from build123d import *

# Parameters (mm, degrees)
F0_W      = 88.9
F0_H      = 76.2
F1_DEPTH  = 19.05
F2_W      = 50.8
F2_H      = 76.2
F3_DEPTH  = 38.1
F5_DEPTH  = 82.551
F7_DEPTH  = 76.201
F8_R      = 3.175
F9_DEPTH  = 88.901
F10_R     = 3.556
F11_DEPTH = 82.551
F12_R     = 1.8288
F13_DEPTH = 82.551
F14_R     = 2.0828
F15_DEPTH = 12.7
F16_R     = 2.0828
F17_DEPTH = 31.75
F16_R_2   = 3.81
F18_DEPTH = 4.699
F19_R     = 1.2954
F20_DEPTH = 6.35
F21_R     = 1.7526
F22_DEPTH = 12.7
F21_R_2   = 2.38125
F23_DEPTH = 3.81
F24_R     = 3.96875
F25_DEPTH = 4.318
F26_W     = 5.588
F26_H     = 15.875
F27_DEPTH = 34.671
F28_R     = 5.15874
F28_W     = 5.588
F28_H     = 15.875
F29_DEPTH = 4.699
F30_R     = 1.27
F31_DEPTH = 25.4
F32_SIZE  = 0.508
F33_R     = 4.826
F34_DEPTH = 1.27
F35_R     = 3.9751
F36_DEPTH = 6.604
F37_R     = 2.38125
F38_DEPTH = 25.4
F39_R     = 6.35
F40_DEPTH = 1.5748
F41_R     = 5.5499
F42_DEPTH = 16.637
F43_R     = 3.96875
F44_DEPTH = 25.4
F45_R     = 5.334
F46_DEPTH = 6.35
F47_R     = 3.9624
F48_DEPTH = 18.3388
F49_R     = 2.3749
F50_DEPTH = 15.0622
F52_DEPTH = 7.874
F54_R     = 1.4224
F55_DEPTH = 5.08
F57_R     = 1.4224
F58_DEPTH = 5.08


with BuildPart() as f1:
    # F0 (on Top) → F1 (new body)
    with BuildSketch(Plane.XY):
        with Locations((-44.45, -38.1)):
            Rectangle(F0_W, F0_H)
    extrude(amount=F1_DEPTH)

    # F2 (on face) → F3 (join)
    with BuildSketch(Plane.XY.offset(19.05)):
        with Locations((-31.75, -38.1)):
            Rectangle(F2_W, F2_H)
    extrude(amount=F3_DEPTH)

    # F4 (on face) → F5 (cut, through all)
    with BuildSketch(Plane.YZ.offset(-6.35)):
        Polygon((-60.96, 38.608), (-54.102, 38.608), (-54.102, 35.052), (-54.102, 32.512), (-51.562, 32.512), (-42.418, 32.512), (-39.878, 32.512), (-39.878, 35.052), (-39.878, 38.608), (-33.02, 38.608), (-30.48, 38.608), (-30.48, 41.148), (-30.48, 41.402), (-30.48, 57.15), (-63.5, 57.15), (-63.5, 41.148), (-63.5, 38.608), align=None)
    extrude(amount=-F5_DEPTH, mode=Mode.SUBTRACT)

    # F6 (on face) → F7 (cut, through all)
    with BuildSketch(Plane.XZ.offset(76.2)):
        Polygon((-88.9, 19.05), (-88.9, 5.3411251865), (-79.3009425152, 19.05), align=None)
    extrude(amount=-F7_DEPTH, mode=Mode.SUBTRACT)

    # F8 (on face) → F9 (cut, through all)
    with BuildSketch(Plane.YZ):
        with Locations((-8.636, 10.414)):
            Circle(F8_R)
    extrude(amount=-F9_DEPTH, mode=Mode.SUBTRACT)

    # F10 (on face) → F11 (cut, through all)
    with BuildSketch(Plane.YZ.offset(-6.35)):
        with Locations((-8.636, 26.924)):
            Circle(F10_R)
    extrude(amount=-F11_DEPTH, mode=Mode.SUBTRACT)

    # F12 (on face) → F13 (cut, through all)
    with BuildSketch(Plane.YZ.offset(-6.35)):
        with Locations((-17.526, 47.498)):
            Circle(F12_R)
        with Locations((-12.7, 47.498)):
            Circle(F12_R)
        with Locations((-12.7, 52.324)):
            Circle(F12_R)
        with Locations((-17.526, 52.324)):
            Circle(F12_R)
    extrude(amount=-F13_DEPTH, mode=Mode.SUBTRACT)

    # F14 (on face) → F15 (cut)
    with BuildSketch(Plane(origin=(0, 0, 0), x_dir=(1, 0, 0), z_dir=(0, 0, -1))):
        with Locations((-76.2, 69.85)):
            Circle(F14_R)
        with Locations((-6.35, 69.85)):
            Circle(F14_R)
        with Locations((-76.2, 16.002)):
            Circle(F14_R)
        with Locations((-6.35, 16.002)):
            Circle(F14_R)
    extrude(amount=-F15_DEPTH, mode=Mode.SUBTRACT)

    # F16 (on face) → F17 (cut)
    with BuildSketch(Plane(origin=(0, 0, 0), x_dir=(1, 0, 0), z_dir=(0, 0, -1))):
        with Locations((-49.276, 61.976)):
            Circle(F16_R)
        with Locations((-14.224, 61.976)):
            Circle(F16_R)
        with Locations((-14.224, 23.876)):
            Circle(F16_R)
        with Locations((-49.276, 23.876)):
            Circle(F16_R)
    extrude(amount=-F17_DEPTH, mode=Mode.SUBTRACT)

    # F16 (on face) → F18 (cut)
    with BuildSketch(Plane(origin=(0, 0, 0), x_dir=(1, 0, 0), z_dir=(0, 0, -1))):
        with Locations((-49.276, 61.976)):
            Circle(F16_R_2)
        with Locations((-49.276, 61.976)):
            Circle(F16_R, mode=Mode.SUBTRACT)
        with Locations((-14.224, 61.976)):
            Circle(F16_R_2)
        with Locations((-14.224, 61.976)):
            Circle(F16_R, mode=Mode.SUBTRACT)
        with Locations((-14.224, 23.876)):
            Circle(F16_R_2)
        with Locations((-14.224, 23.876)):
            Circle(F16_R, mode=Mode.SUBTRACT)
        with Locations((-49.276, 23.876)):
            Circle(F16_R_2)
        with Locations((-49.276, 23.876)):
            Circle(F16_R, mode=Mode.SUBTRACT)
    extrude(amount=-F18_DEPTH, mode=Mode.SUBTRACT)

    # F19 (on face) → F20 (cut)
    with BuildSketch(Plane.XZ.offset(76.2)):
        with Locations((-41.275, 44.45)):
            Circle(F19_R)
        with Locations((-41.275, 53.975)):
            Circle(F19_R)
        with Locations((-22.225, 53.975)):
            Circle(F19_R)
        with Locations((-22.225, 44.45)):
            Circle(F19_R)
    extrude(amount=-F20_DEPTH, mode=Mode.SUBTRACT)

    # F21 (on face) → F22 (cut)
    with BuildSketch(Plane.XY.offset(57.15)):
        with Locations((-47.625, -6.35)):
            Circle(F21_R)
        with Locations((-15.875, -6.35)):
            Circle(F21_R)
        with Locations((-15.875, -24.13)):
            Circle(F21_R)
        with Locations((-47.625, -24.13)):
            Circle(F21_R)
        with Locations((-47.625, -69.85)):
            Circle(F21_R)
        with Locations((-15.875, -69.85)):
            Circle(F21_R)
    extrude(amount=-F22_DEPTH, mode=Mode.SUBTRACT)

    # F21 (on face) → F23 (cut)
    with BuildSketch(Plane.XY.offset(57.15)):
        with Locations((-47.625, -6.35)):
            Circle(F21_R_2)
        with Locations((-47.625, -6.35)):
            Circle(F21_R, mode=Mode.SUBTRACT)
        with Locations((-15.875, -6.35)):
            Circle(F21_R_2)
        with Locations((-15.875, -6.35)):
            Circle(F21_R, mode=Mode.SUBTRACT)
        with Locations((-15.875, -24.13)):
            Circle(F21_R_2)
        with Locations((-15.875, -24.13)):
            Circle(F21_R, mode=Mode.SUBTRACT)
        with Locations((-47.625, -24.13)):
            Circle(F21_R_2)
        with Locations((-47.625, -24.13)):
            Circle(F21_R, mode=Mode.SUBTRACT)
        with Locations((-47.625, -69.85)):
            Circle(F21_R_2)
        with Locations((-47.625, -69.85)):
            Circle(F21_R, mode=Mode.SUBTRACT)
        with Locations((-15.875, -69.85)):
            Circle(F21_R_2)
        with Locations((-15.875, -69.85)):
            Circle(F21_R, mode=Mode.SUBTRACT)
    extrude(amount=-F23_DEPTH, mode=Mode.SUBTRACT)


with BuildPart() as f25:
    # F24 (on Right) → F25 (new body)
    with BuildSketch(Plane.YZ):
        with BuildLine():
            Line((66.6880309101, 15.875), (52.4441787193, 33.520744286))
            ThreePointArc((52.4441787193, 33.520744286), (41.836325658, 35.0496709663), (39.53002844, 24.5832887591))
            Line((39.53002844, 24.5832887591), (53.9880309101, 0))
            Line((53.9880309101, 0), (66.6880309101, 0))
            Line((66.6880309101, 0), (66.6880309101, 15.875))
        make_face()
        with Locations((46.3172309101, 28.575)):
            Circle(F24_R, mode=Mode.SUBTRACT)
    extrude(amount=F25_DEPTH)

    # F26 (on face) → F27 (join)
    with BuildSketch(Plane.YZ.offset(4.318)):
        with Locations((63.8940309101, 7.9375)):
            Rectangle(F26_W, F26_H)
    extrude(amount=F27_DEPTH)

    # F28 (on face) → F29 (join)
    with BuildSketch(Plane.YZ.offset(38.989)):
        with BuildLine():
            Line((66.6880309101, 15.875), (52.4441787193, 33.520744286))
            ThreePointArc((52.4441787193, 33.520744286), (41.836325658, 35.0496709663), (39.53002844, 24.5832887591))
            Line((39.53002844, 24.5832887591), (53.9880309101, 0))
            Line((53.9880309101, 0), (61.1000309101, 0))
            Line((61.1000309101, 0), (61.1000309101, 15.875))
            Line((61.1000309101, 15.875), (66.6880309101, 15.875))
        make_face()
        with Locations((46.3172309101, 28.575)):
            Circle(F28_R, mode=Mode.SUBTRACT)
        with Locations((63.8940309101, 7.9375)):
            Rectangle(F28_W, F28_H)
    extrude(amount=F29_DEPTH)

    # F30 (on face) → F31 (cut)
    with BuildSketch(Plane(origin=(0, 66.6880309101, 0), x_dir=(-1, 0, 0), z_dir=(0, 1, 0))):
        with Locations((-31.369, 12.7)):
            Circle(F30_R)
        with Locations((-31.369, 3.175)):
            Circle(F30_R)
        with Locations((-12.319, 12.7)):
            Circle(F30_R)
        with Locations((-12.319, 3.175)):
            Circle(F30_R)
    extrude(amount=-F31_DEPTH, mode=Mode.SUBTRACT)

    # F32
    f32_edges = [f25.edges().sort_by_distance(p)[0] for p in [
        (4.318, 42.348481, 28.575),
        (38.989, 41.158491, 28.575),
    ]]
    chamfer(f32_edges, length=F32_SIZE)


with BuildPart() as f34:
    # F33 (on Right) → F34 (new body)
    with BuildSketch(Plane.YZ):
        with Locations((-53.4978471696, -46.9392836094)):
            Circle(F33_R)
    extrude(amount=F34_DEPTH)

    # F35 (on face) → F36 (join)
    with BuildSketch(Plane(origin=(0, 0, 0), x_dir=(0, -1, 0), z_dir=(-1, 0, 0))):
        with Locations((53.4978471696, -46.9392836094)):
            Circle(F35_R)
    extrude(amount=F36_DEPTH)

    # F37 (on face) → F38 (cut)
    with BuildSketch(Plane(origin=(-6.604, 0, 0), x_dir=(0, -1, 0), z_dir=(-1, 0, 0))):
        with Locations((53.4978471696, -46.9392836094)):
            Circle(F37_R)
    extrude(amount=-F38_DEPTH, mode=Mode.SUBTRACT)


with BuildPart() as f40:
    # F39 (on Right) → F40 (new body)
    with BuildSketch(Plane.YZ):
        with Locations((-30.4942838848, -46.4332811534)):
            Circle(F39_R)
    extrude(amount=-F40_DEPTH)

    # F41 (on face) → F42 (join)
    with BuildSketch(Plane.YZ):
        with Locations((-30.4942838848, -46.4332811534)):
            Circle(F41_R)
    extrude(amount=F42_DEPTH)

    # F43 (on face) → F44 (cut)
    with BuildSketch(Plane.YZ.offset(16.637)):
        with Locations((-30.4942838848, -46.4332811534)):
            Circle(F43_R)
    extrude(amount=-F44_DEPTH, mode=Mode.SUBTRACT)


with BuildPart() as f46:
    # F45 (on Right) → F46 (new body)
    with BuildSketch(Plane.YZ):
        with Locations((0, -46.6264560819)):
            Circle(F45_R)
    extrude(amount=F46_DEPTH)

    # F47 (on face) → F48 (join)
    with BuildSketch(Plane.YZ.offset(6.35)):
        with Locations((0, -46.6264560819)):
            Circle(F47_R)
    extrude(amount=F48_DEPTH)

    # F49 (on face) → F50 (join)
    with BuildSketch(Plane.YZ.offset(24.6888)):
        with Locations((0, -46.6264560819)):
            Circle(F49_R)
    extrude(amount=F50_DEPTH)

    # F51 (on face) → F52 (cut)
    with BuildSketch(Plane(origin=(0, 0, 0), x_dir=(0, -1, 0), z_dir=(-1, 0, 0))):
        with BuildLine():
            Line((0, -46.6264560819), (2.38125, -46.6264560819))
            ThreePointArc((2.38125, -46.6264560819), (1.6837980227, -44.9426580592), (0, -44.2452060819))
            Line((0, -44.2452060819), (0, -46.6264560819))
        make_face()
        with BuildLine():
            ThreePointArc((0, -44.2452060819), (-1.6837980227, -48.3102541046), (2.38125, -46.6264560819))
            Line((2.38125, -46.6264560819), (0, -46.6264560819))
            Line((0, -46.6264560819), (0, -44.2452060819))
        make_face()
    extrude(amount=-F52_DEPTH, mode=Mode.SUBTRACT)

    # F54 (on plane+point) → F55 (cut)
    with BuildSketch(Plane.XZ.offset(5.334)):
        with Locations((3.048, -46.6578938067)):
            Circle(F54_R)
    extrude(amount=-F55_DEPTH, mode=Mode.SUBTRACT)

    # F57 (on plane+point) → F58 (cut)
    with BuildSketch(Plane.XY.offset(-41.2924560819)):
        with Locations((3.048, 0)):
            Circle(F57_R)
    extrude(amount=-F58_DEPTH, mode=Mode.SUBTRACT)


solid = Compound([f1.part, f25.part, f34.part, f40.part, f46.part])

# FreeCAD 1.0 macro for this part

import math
import FreeCAD as App
import Part
import Sketcher

V = App.Vector
Q = App.Units.Quantity


def edges_at(feature, points):
    """Names of the edges that pass closest to the given points."""
    edges = feature.Shape.Edges
    near = lambda p: min(range(len(edges)), key=lambda i: edges[i].distToShape(Part.Vertex(*p))[0])
    return sorted({f"Edge{near(p) + 1}" for p in points})


def add_polygon(sketch, points):
    """Adds a closed chain of lines whose ends are joined by coincident constraints."""
    first, n = sketch.GeometryCount, len(points)
    for a, b in zip(points, points[1:] + points[:1]):
        sketch.addGeometry(Part.LineSegment(App.Vector(*a, 0), App.Vector(*b, 0)), False)
    for i in range(n):
        sketch.addConstraint(Sketcher.Constraint("Coincident", first + i, 2, first + (i + 1) % n, 1))

doc = App.newDocument("Part")
body = doc.addObject("PartDesign::Body", "Body")

# Sketch on XY plane
sketch1 = body.newObject("Sketcher::SketchObject", "Sketch")
sketch1.AttachmentSupport = (doc.getObject("XY_Plane"), [""])
sketch1.MapMode = "FlatFace"
add_polygon(sketch1, [(-89, 0), (-89, -76), (0, -76), (0, 0)])  # lines 0-3
sketch1.addConstraint([
    Sketcher.Constraint("Vertical", 0),
    Sketcher.Constraint("Horizontal", 1),
    Sketcher.Constraint("Vertical", 2),
    Sketcher.Constraint("Horizontal", 3),
    Sketcher.Constraint("Coincident", 2, 2, -1, 1),
    Sketcher.Constraint("DistanceY", 0, 2, 0, 1, Q("3 in")),
    Sketcher.Constraint("DistanceX", 1, 1, 1, 2, Q("3.5 in")),
])
pad1 = body.newObject("PartDesign::Pad", "Pad")
pad1.Profile = sketch1
pad1.Length = Q("0.75 in")

# Sketch on XY plane
sketch2 = body.newObject("Sketcher::SketchObject", "Sketch001")
sketch2.AttachmentSupport = (doc.getObject("XY_Plane"), [""])
sketch2.MapMode = "FlatFace"
sketch2.AttachmentOffset = App.Placement(V(0, 0, 0.75 * 25.4), App.Rotation())
add_polygon(sketch2, [(-57, 0), (-57, -76), (-6, -76), (-6, 0)])  # lines 0-3
sketch2.addConstraint([
    Sketcher.Constraint("Vertical", 0),
    Sketcher.Constraint("Horizontal", 1),
    Sketcher.Constraint("Vertical", 2),
    Sketcher.Constraint("Horizontal", 3),
    Sketcher.Constraint("PointOnObject", 2, 2, -1),
    Sketcher.Constraint("DistanceX", 1, 1, 1, 2, Q("2 in")),
    Sketcher.Constraint("DistanceY", 0, 2, 0, 1, Q("3 in")),
    Sketcher.Constraint("DistanceX", 0, 2, -1, 1, Q("2.25 in")),
])
pad2 = body.newObject("PartDesign::Pad", "Pad001")
pad2.Profile = sketch2
pad2.Length = Q("1.5 in")

# Sketch on YZ plane
sketch3 = body.newObject("Sketcher::SketchObject", "Sketch002")
sketch3.AttachmentSupport = (doc.getObject("YZ_Plane"), [""])
sketch3.MapMode = "FlatFace"
sketch3.AttachmentOffset = App.Placement(V(0, 0, -0.25 * 25.4), App.Rotation())
add_polygon(sketch3, [(-54, 39), (-54, 33), (-40, 33), (-40, 39), (-30, 39), (-30, 57), (-64, 57), (-64, 39)])  # lines 0-7
sketch3.addConstraint([
    Sketcher.Constraint("Vertical", 0),
    Sketcher.Constraint("Horizontal", 1),
    Sketcher.Constraint("Vertical", 2),
    Sketcher.Constraint("Horizontal", 3),
    Sketcher.Constraint("Vertical", 4),
    Sketcher.Constraint("Horizontal", 5),
    Sketcher.Constraint("Vertical", 6),
    Sketcher.Constraint("Horizontal", 7),
    Sketcher.Constraint("Horizontal", 3, 2, 6, 2),
    Sketcher.Constraint("Equal", 3, 7),
    Sketcher.Constraint("DistanceX", 5, 2, 5, 1, Q("1.3 in")),
    Sketcher.Constraint("DistanceX", 1, 1, 1, 2, Q("0.56 in")),
    Sketcher.Constraint("DistanceY", 0, 2, 0, 1, Q("0.24 in")),
    Sketcher.Constraint("DistanceY", 4, 1, 4, 2, Q("0.73 in")),
    Sketcher.Constraint("DistanceX", 3, 2, -1, 1, Q("1.2 in")),
    Sketcher.Constraint("DistanceY", -1, 1, 0, 2, Q("1.28 in")),
])
pocket1 = body.newObject("PartDesign::Pocket", "Pocket")
pocket1.Profile = sketch3
pocket1.Type = "ThroughAll"

# Sketch on XZ plane
sketch4 = body.newObject("Sketcher::SketchObject", "Sketch003")
sketch4.AttachmentSupport = (doc.getObject("XZ_Plane"), [""])
sketch4.MapMode = "FlatFace"
sketch4.AttachmentOffset = App.Placement(V(0, 0, 3 * 25.4), App.Rotation())
add_polygon(sketch4, [(-89, 19), (-89, 5), (-79, 19)])  # lines 0-2
sketch4.addConstraint([
    Sketcher.Constraint("Vertical", 0),
    Sketcher.Constraint("Horizontal", 2),
    Sketcher.Constraint("Angle", 1, Q("55 deg")),
    Sketcher.Constraint("DistanceX", 0, 2, -1, 1, Q("3.5 in")),
    Sketcher.Constraint("DistanceY", -1, 1, 1, 2, Q("0.75 in")),
    Sketcher.Constraint("DistanceX", 2, 2, 2, 1, Q("9.599057 mm")),
])
pocket2 = body.newObject("PartDesign::Pocket", "Pocket001")
pocket2.Profile = sketch4
pocket2.Type = "ThroughAll"

# Sketch on YZ plane
sketch5 = body.newObject("Sketcher::SketchObject", "Sketch004")
sketch5.AttachmentSupport = (doc.getObject("YZ_Plane"), [""])
sketch5.MapMode = "FlatFace"
sketch5.addGeometry(Part.Circle(V(-8.6, 10.4, 0), V(0, 0, 1), 3.2), False)
sketch5.addConstraint([
    Sketcher.Constraint("Diameter", 0, Q("0.25 in")),
    Sketcher.Constraint("DistanceX", 0, 3, -1, 1, Q("0.34 in")),
    Sketcher.Constraint("DistanceY", -1, 1, 0, 3, Q("0.41 in")),
])
pocket3 = body.newObject("PartDesign::Pocket", "Pocket002")
pocket3.Profile = sketch5
pocket3.Type = "ThroughAll"

# Sketch on YZ plane
sketch6 = body.newObject("Sketcher::SketchObject", "Sketch005")
sketch6.AttachmentSupport = (doc.getObject("YZ_Plane"), [""])
sketch6.MapMode = "FlatFace"
sketch6.AttachmentOffset = App.Placement(V(0, 0, -0.25 * 25.4), App.Rotation())
sketch6.addGeometry(Part.Circle(V(-8.6, 26.9, 0), V(0, 0, 1), 3.6), False)
sketch6.addConstraint([
    Sketcher.Constraint("Diameter", 0, Q("0.28 in")),
    Sketcher.Constraint("DistanceX", 0, 3, -1, 1, Q("0.34 in")),
    Sketcher.Constraint("DistanceY", -1, 1, 0, 3, Q("1.06 in")),
])
pocket4 = body.newObject("PartDesign::Pocket", "Pocket003")
pocket4.Profile = sketch6
pocket4.Type = "ThroughAll"

# Sketch on YZ plane
sketch7 = body.newObject("Sketcher::SketchObject", "Sketch006")
sketch7.AttachmentSupport = (doc.getObject("YZ_Plane"), [""])
sketch7.MapMode = "FlatFace"
sketch7.AttachmentOffset = App.Placement(V(0, 0, -0.25 * 25.4), App.Rotation())
sketch7.addGeometry([
    Part.Circle(V(-17.5, 47.5, 0), V(0, 0, 1), 1.8),
    Part.Circle(V(-12.7, 47.5, 0), V(0, 0, 1), 1.8),
    Part.Circle(V(-12.7, 52.3, 0), V(0, 0, 1), 1.8),
    Part.Circle(V(-17.5, 52.3, 0), V(0, 0, 1), 1.8),
], False)
sketch7.addConstraint([
    Sketcher.Constraint("Equal", 0, 1),
    Sketcher.Constraint("Equal", 1, 2),
    Sketcher.Constraint("Equal", 2, 3),
    Sketcher.Constraint("Horizontal", 0, 3, 1, 3),
    Sketcher.Constraint("Horizontal", 2, 3, 3, 3),
    Sketcher.Constraint("Vertical", 1, 3, 2, 3),
    Sketcher.Constraint("Vertical", 0, 3, 3, 3),
    Sketcher.Constraint("Diameter", 0, Q("0.144 in")),
    Sketcher.Constraint("DistanceX", 1, 3, -1, 1, Q("0.5 in")),
    Sketcher.Constraint("DistanceX", 0, 3, -1, 1, Q("0.69 in")),
    Sketcher.Constraint("DistanceY", -1, 1, 0, 3, Q("1.87 in")),
    Sketcher.Constraint("DistanceY", -1, 1, 2, 3, Q("2.06 in")),
])
pocket5 = body.newObject("PartDesign::Pocket", "Pocket004")
pocket5.Profile = sketch7
pocket5.Type = "ThroughAll"

# Sketch on XY plane
sketch8 = body.newObject("Sketcher::SketchObject", "Sketch007")
sketch8.AttachmentSupport = (doc.getObject("XY_Plane"), [""])
sketch8.MapMode = "FlatFace"
sketch8.addGeometry([
    Part.Circle(V(-76.2, -69.8, 0), V(0, 0, 1), 2.1),
    Part.Circle(V(-6.3, -69.8, 0), V(0, 0, 1), 2.1),
    Part.Circle(V(-76.2, -16, 0), V(0, 0, 1), 2.1),
    Part.Circle(V(-6.3, -16, 0), V(0, 0, 1), 2.1),
], False)
sketch8.addConstraint([
    Sketcher.Constraint("Equal", 0, 1),
    Sketcher.Constraint("Equal", 1, 2),
    Sketcher.Constraint("Equal", 2, 3),
    Sketcher.Constraint("Horizontal", 0, 3, 1, 3),
    Sketcher.Constraint("Horizontal", 2, 3, 3, 3),
    Sketcher.Constraint("Vertical", 0, 3, 2, 3),
    Sketcher.Constraint("Vertical", 1, 3, 3, 3),
    Sketcher.Constraint("Diameter", 0, Q("0.164 in")),
    Sketcher.Constraint("DistanceX", 0, 3, -1, 1, Q("3 in")),
    Sketcher.Constraint("DistanceY", 0, 3, -1, 1, Q("2.75 in")),
    Sketcher.Constraint("DistanceX", 1, 3, -1, 1, Q("0.25 in")),
    Sketcher.Constraint("DistanceY", 2, 3, -1, 1, Q("0.63 in")),
])
pocket6 = body.newObject("PartDesign::Pocket", "Pocket005")
pocket6.Profile = sketch8
pocket6.Length = Q("0.5 in")
pocket6.Reversed = True

# Sketch on XY plane
sketch9 = body.newObject("Sketcher::SketchObject", "Sketch008")
sketch9.AttachmentSupport = (doc.getObject("XY_Plane"), [""])
sketch9.MapMode = "FlatFace"
sketch9.addGeometry([
    Part.Circle(V(-49.3, -62, 0), V(0, 0, 1), 2.1),
    Part.Circle(V(-14.2, -62, 0), V(0, 0, 1), 2.1),
    Part.Circle(V(-14.2, -23.9, 0), V(0, 0, 1), 2.1),
    Part.Circle(V(-49.3, -23.9, 0), V(0, 0, 1), 2.1),
], False)
sketch9.addConstraint([
    Sketcher.Constraint("Equal", 0, 1),
    Sketcher.Constraint("Equal", 1, 2),
    Sketcher.Constraint("Equal", 2, 3),
    Sketcher.Constraint("Horizontal", 0, 3, 1, 3),
    Sketcher.Constraint("Horizontal", 2, 3, 3, 3),
    Sketcher.Constraint("Vertical", 1, 3, 2, 3),
    Sketcher.Constraint("Vertical", 0, 3, 3, 3),
    Sketcher.Constraint("Diameter", 0, Q("0.164 in")),
    Sketcher.Constraint("DistanceY", 1, 3, 2, 3, Q("1.5 in")),
    Sketcher.Constraint("DistanceX", 0, 3, -1, 1, Q("1.94 in")),
    Sketcher.Constraint("DistanceY", 0, 3, -1, 1, Q("2.44 in")),
    Sketcher.Constraint("DistanceX", 1, 3, -1, 1, Q("0.56 in")),
])
pocket7 = body.newObject("PartDesign::Pocket", "Pocket006")
pocket7.Profile = sketch9
pocket7.Length = Q("1.25 in")
pocket7.Reversed = True

# Sketch on XY plane
sketch10 = body.newObject("Sketcher::SketchObject", "Sketch009")
sketch10.AttachmentSupport = (doc.getObject("XY_Plane"), [""])
sketch10.MapMode = "FlatFace"
sketch10.addGeometry([
    Part.Circle(V(-49.3, -62, 0), V(0, 0, 1), 3.8),  # 0
    Part.Circle(V(-49.3, -62, 0), V(0, 0, 1), 2.1),  # 1
    Part.Circle(V(-14.2, -62, 0), V(0, 0, 1), 3.8),  # 2
    Part.Circle(V(-14.2, -62, 0), V(0, 0, 1), 2.1),  # 3
    Part.Circle(V(-14.2, -23.9, 0), V(0, 0, 1), 3.8),  # 4
    Part.Circle(V(-14.2, -23.9, 0), V(0, 0, 1), 2.1),  # 5
    Part.Circle(V(-49.3, -23.9, 0), V(0, 0, 1), 3.8),  # 6
    Part.Circle(V(-49.3, -23.9, 0), V(0, 0, 1), 2.1),  # 7
], False)
sketch10.addConstraint([
    Sketcher.Constraint("Coincident", 1, 3, 0, 3),
    Sketcher.Constraint("Coincident", 3, 3, 2, 3),
    Sketcher.Constraint("Coincident", 5, 3, 4, 3),
    Sketcher.Constraint("Coincident", 7, 3, 6, 3),
    Sketcher.Constraint("Equal", 0, 2),
    Sketcher.Constraint("Equal", 1, 3),
    Sketcher.Constraint("Equal", 2, 4),
    Sketcher.Constraint("Equal", 3, 5),
    Sketcher.Constraint("Equal", 4, 6),
    Sketcher.Constraint("Equal", 5, 7),
    Sketcher.Constraint("Horizontal", 1, 3, 2, 3),
    Sketcher.Constraint("Horizontal", 5, 3, 6, 3),
    Sketcher.Constraint("Vertical", 3, 3, 4, 3),
    Sketcher.Constraint("Vertical", 1, 3, 6, 3),
    Sketcher.Constraint("Diameter", 0, Q("0.3 in")),
    Sketcher.Constraint("Diameter", 1, Q("0.164 in")),
    Sketcher.Constraint("DistanceY", 2, 3, 4, 3, Q("1.5 in")),
    Sketcher.Constraint("DistanceX", 0, 3, -1, 1, Q("1.94 in")),
    Sketcher.Constraint("DistanceY", 0, 3, -1, 1, Q("2.44 in")),
    Sketcher.Constraint("DistanceX", 2, 3, -1, 1, Q("0.56 in")),
])
pocket8 = body.newObject("PartDesign::Pocket", "Pocket007")
pocket8.Profile = sketch10
pocket8.Length = Q("0.185 in")
pocket8.Reversed = True

# Sketch on XZ plane
sketch11 = body.newObject("Sketcher::SketchObject", "Sketch010")
sketch11.AttachmentSupport = (doc.getObject("XZ_Plane"), [""])
sketch11.MapMode = "FlatFace"
sketch11.AttachmentOffset = App.Placement(V(0, 0, 3 * 25.4), App.Rotation())
sketch11.addGeometry([
    Part.Circle(V(-41.3, 44.5, 0), V(0, 0, 1), 1.3),
    Part.Circle(V(-41.3, 54, 0), V(0, 0, 1), 1.3),
    Part.Circle(V(-22.2, 54, 0), V(0, 0, 1), 1.3),
    Part.Circle(V(-22.2, 44.5, 0), V(0, 0, 1), 1.3),
], False)
sketch11.addConstraint([
    Sketcher.Constraint("Equal", 0, 1),
    Sketcher.Constraint("Equal", 1, 2),
    Sketcher.Constraint("Equal", 2, 3),
    Sketcher.Constraint("Horizontal", 1, 3, 2, 3),
    Sketcher.Constraint("Horizontal", 0, 3, 3, 3),
    Sketcher.Constraint("Vertical", 0, 3, 1, 3),
    Sketcher.Constraint("Vertical", 2, 3, 3, 3),
    Sketcher.Constraint("Diameter", 0, Q("0.102 in")),
    Sketcher.Constraint("DistanceY", -1, 1, 0, 3, Q("1.75 in")),
    Sketcher.Constraint("DistanceX", 1, 3, 2, 3, Q("0.75 in")),
    Sketcher.Constraint("DistanceX", 0, 3, -1, 1, Q("1.625 in")),
    Sketcher.Constraint("DistanceY", -1, 1, 1, 3, Q("2.125 in")),
])
pocket9 = body.newObject("PartDesign::Pocket", "Pocket008")
pocket9.Profile = sketch11
pocket9.Length = Q("0.25 in")

# Sketch on XY plane
sketch12 = body.newObject("Sketcher::SketchObject", "Sketch011")
sketch12.AttachmentSupport = (doc.getObject("XY_Plane"), [""])
sketch12.MapMode = "FlatFace"
sketch12.AttachmentOffset = App.Placement(V(0, 0, 2.25 * 25.4), App.Rotation())
sketch12.addGeometry([
    Part.Circle(V(-47.6, -6.3, 0), V(0, 0, 1), 1.8),  # 0
    Part.Circle(V(-15.9, -6.3, 0), V(0, 0, 1), 1.8),  # 1
    Part.Circle(V(-15.9, -24.1, 0), V(0, 0, 1), 1.8),  # 2
    Part.Circle(V(-47.6, -24.1, 0), V(0, 0, 1), 1.8),  # 3
    Part.Circle(V(-47.6, -69.8, 0), V(0, 0, 1), 1.8),  # 4
    Part.Circle(V(-15.9, -69.8, 0), V(0, 0, 1), 1.8),  # 5
], False)
sketch12.addConstraint([
    Sketcher.Constraint("Equal", 0, 1),
    Sketcher.Constraint("Equal", 1, 2),
    Sketcher.Constraint("Equal", 2, 3),
    Sketcher.Constraint("Equal", 3, 4),
    Sketcher.Constraint("Equal", 4, 5),
    Sketcher.Constraint("Horizontal", 0, 3, 1, 3),
    Sketcher.Constraint("Horizontal", 2, 3, 3, 3),
    Sketcher.Constraint("Horizontal", 4, 3, 5, 3),
    Sketcher.Constraint("Vertical", 1, 3, 2, 3),
    Sketcher.Constraint("Vertical", 0, 3, 3, 3),
    Sketcher.Constraint("Vertical", 3, 3, 4, 3),
    Sketcher.Constraint("Vertical", 2, 3, 5, 3),
    Sketcher.Constraint("Diameter", 0, Q("0.138 in")),
    Sketcher.Constraint("DistanceY", 2, 3, 1, 3, Q("0.7 in")),
    Sketcher.Constraint("DistanceY", 4, 3, 3, 3, Q("1.8 in")),
    Sketcher.Constraint("DistanceY", 0, 3, -1, 1, Q("0.25 in")),
    Sketcher.Constraint("DistanceX", 0, 3, 1, 3, Q("1.25 in")),
    Sketcher.Constraint("DistanceX", 0, 3, -1, 1, Q("1.875 in")),
])
pocket10 = body.newObject("PartDesign::Pocket", "Pocket009")
pocket10.Profile = sketch12
pocket10.Length = Q("0.5 in")

# Sketch on XY plane
sketch13 = body.newObject("Sketcher::SketchObject", "Sketch012")
sketch13.AttachmentSupport = (doc.getObject("XY_Plane"), [""])
sketch13.MapMode = "FlatFace"
sketch13.AttachmentOffset = App.Placement(V(0, 0, 2.25 * 25.4), App.Rotation())
sketch13.addGeometry([
    Part.Circle(V(-47.6, -6.3, 0), V(0, 0, 1), 2.4),  # 0
    Part.Circle(V(-47.6, -6.3, 0), V(0, 0, 1), 1.8),  # 1
    Part.Circle(V(-15.9, -6.3, 0), V(0, 0, 1), 2.4),  # 2
    Part.Circle(V(-15.9, -6.3, 0), V(0, 0, 1), 1.8),  # 3
    Part.Circle(V(-15.9, -24.1, 0), V(0, 0, 1), 2.4),  # 4
    Part.Circle(V(-15.9, -24.1, 0), V(0, 0, 1), 1.8),  # 5
    Part.Circle(V(-47.6, -24.1, 0), V(0, 0, 1), 2.4),  # 6
    Part.Circle(V(-47.6, -24.1, 0), V(0, 0, 1), 1.8),  # 7
    Part.Circle(V(-47.6, -69.8, 0), V(0, 0, 1), 2.4),  # 8
    Part.Circle(V(-47.6, -69.8, 0), V(0, 0, 1), 1.8),  # 9
    Part.Circle(V(-15.9, -69.8, 0), V(0, 0, 1), 2.4),  # 10
    Part.Circle(V(-15.9, -69.8, 0), V(0, 0, 1), 1.8),  # 11
], False)
sketch13.addConstraint([
    Sketcher.Constraint("Coincident", 1, 3, 0, 3),
    Sketcher.Constraint("Coincident", 3, 3, 2, 3),
    Sketcher.Constraint("Coincident", 5, 3, 4, 3),
    Sketcher.Constraint("Coincident", 7, 3, 6, 3),
    Sketcher.Constraint("Coincident", 9, 3, 8, 3),
    Sketcher.Constraint("Coincident", 11, 3, 10, 3),
    Sketcher.Constraint("Equal", 0, 2),
    Sketcher.Constraint("Equal", 1, 3),
    Sketcher.Constraint("Equal", 2, 4),
    Sketcher.Constraint("Equal", 3, 5),
    Sketcher.Constraint("Equal", 4, 6),
    Sketcher.Constraint("Equal", 5, 7),
    Sketcher.Constraint("Equal", 6, 8),
    Sketcher.Constraint("Equal", 7, 9),
    Sketcher.Constraint("Equal", 8, 10),
    Sketcher.Constraint("Equal", 9, 11),
    Sketcher.Constraint("Horizontal", 1, 3, 2, 3),
    Sketcher.Constraint("Horizontal", 5, 3, 6, 3),
    Sketcher.Constraint("Horizontal", 9, 3, 10, 3),
    Sketcher.Constraint("Vertical", 3, 3, 4, 3),
    Sketcher.Constraint("Vertical", 1, 3, 6, 3),
    Sketcher.Constraint("Vertical", 7, 3, 8, 3),
    Sketcher.Constraint("Vertical", 5, 3, 10, 3),
    Sketcher.Constraint("Diameter", 0, Q("0.1875 in")),
    Sketcher.Constraint("Diameter", 1, Q("0.138 in")),
    Sketcher.Constraint("DistanceY", 4, 3, 2, 3, Q("0.7 in")),
    Sketcher.Constraint("DistanceY", 8, 3, 6, 3, Q("1.8 in")),
    Sketcher.Constraint("DistanceY", 0, 3, -1, 1, Q("0.25 in")),
    Sketcher.Constraint("DistanceX", 0, 3, 2, 3, Q("1.25 in")),
    Sketcher.Constraint("DistanceX", 0, 3, -1, 1, Q("1.875 in")),
])
pocket11 = body.newObject("PartDesign::Pocket", "Pocket010")
pocket11.Profile = sketch13
pocket11.Length = Q("0.15 in")
body2 = doc.addObject("PartDesign::Body", "Body001")

# Sketch on YZ plane
sketch14 = body2.newObject("Sketcher::SketchObject", "Sketch013")
sketch14.AttachmentSupport = (doc.getObject("YZ_Plane001"), [""])
sketch14.MapMode = "FlatFace"
sketch14.addGeometry([
    Part.LineSegment(V(66.7, 15.9, 0), V(52.4, 33.5, 0)),  # 0
    Part.ArcOfCircle(Part.Circle(V(46.3, 28.6, 0), V(0, 0, 1), 7.9), math.radians(39), math.radians(210)),  # 1
    Part.LineSegment(V(39.5, 24.6, 0), V(54, 0, 0)),  # 2
    Part.LineSegment(V(54, 0, 0), V(66.7, 0, 0)),  # 3
    Part.LineSegment(V(66.7, 0, 0), V(66.7, 15.9, 0)),  # 4
    Part.Circle(V(46.3, 28.6, 0), V(0, 0, 1), 4),  # 5
], False)
sketch14.addConstraint([
    Sketcher.Constraint("Tangent", 0, 2, 1, 1),
    Sketcher.Constraint("Tangent", 1, 2, 2, 1),
    Sketcher.Constraint("Coincident", 2, 2, 3, 1),
    Sketcher.Constraint("Coincident", 3, 2, 4, 1),
    Sketcher.Constraint("Coincident", 4, 2, 0, 1),
    Sketcher.Constraint("Horizontal", 3),
    Sketcher.Constraint("Vertical", 4),
    Sketcher.Constraint("Coincident", 5, 3, 1, 3),
    Sketcher.Constraint("PointOnObject", 2, 2, -1),
    Sketcher.Constraint("Radius", 1, Q("0.31 in")),
    Sketcher.Constraint("Diameter", 5, Q("0.3125 in")),
    Sketcher.Constraint("DistanceX", 3, 1, 3, 2, Q("0.5 in")),
    Sketcher.Constraint("DistanceY", 4, 2, 1, 3, Q("0.5 in")),
    Sketcher.Constraint("DistanceY", 4, 1, 4, 2, Q("0.625 in")),
    Sketcher.Constraint("DistanceX", 1, 3, 2, 2, Q("0.302 in")),
    Sketcher.Constraint("DistanceX", -1, 1, 1, 3, Q("46.317231 mm")),
])
pad3 = body2.newObject("PartDesign::Pad", "Pad002")
pad3.Profile = sketch14
pad3.Length = Q("0.17 in")

# Sketch on YZ plane
sketch15 = body2.newObject("Sketcher::SketchObject", "Sketch014")
sketch15.AttachmentSupport = (doc.getObject("YZ_Plane001"), [""])
sketch15.MapMode = "FlatFace"
sketch15.AttachmentOffset = App.Placement(V(0, 0, 0.17 * 25.4), App.Rotation())
add_polygon(sketch15, [(61, 16), (61, 0), (67, 0), (67, 16)])  # lines 0-3
sketch15.addConstraint([
    Sketcher.Constraint("Vertical", 0),
    Sketcher.Constraint("Horizontal", 1),
    Sketcher.Constraint("Vertical", 2),
    Sketcher.Constraint("Horizontal", 3),
    Sketcher.Constraint("PointOnObject", 0, 2, -1),
    Sketcher.Constraint("DistanceX", 1, 1, 1, 2, Q("0.22 in")),
    Sketcher.Constraint("DistanceY", 0, 2, 0, 1, Q("0.625 in")),
    Sketcher.Constraint("DistanceX", -1, 1, 0, 2, Q("61.100031 mm")),
])
pad4 = body2.newObject("PartDesign::Pad", "Pad003")
pad4.Profile = sketch15
pad4.Length = Q("1.365 in")

# Sketch on YZ plane
sketch16 = body2.newObject("Sketcher::SketchObject", "Sketch015")
sketch16.AttachmentSupport = (doc.getObject("YZ_Plane001"), [""])
sketch16.MapMode = "FlatFace"
sketch16.AttachmentOffset = App.Placement(V(0, 0, 1.535 * 25.4), App.Rotation())
sketch16.addGeometry([
    Part.LineSegment(V(67, 16, 0), V(52, 34, 0)),  # 0
    Part.ArcOfCircle(Part.Circle(V(46, 29, 0), V(0, 0, 1), 8), math.radians(39), math.radians(210)),  # 1
    Part.LineSegment(V(40, 25, 0), V(54, 0, 0)),  # 2
    Part.LineSegment(V(54, 0, 0), V(67, 0, 0)),  # 3
    Part.LineSegment(V(67, 0, 0), V(67, 16, 0)),  # 4
    Part.Circle(V(46, 29, 0), V(0, 0, 1), 5),  # 5
], False)
sketch16.addConstraint([
    Sketcher.Constraint("Tangent", 0, 2, 1, 1),
    Sketcher.Constraint("Tangent", 1, 2, 2, 1),
    Sketcher.Constraint("Coincident", 2, 2, 3, 1),
    Sketcher.Constraint("Coincident", 3, 2, 4, 1),
    Sketcher.Constraint("Coincident", 4, 2, 0, 1),
    Sketcher.Constraint("Horizontal", 3),
    Sketcher.Constraint("Vertical", 4),
    Sketcher.Constraint("Coincident", 5, 3, 1, 3),
    Sketcher.Constraint("PointOnObject", 2, 2, -1),
    Sketcher.Constraint("Radius", 1, Q("0.31 in")),
    Sketcher.Constraint("DistanceX", 3, 1, 3, 2, Q("0.5 in")),
    Sketcher.Constraint("Diameter", 5, Q("0.4062 in")),
    Sketcher.Constraint("DistanceY", 4, 2, 1, 3, Q("0.5 in")),
    Sketcher.Constraint("DistanceY", 4, 1, 4, 2, Q("0.625 in")),
    Sketcher.Constraint("DistanceX", 1, 3, 2, 2, Q("0.302 in")),
    Sketcher.Constraint("DistanceX", -1, 1, 1, 3, Q("46.317231 mm")),
])
pad5 = body2.newObject("PartDesign::Pad", "Pad004")
pad5.Profile = sketch16
pad5.Length = Q("0.185 in")

# Sketch on XZ plane
sketch17 = body2.newObject("Sketcher::SketchObject", "Sketch016")
sketch17.AttachmentSupport = (doc.getObject("XZ_Plane001"), [""])
sketch17.MapMode = "FlatFace"
sketch17.AttachmentOffset = App.Placement(V(0, 0, -66.688031), App.Rotation())
sketch17.addGeometry([
    Part.Circle(V(31.4, 12.7, 0), V(0, 0, 1), 1.3),
    Part.Circle(V(31.4, 3.2, 0), V(0, 0, 1), 1.3),
    Part.Circle(V(12.3, 12.7, 0), V(0, 0, 1), 1.3),
    Part.Circle(V(12.3, 3.2, 0), V(0, 0, 1), 1.3),
], False)
sketch17.addConstraint([
    Sketcher.Constraint("Equal", 0, 1),
    Sketcher.Constraint("Equal", 1, 2),
    Sketcher.Constraint("Equal", 2, 3),
    Sketcher.Constraint("Horizontal", 0, 3, 2, 3),
    Sketcher.Constraint("Horizontal", 1, 3, 3, 3),
    Sketcher.Constraint("Vertical", 0, 3, 1, 3),
    Sketcher.Constraint("Vertical", 2, 3, 3, 3),
    Sketcher.Constraint("Diameter", 0, Q("0.1 in")),
    Sketcher.Constraint("DistanceY", -1, 1, 0, 3, Q("0.5 in")),
    Sketcher.Constraint("DistanceX", 2, 3, 0, 3, Q("0.75 in")),
    Sketcher.Constraint("DistanceX", -1, 1, 0, 3, Q("1.235 in")),
    Sketcher.Constraint("DistanceY", -1, 1, 1, 3, Q("0.125 in")),
])
pocket12 = body2.newObject("PartDesign::Pocket", "Pocket011")
pocket12.Profile = sketch17
pocket12.Length = Q("1 in")
pocket12.Reversed = True
doc.recompute()

chamfer = body2.newObject("PartDesign::Chamfer", "Chamfer")
chamfer.Base = (pocket12, edges_at(pocket12, [(4.318, 42.348, 28.575), (38.989, 41.158, 28.575)]))
chamfer.Size = Q("0.02 in")
body3 = doc.addObject("PartDesign::Body", "Body002")

# Sketch on YZ plane
sketch18 = body3.newObject("Sketcher::SketchObject", "Sketch017")
sketch18.AttachmentSupport = (doc.getObject("YZ_Plane002"), [""])
sketch18.MapMode = "FlatFace"
sketch18.addGeometry(Part.Circle(V(-53.5, -46.9, 0), V(0, 0, 1), 4.8), False)
sketch18.addConstraint([
    Sketcher.Constraint("Diameter", 0, Q("0.38 in")),
    Sketcher.Constraint("DistanceX", 0, 3, -1, 1, Q("53.497847 mm")),
    Sketcher.Constraint("DistanceY", 0, 3, -1, 1, Q("46.939284 mm")),
])
pad6 = body3.newObject("PartDesign::Pad", "Pad005")
pad6.Profile = sketch18
pad6.Length = Q("0.05 in")

# Sketch on YZ plane
sketch19 = body3.newObject("Sketcher::SketchObject", "Sketch018")
sketch19.AttachmentSupport = (doc.getObject("YZ_Plane002"), [""])
sketch19.MapMode = "FlatFace"
sketch19.addGeometry(Part.Circle(V(-53.5, -46.9, 0), V(0, 0, 1), 4), False)
sketch19.addConstraint([
    Sketcher.Constraint("Diameter", 0, Q("0.313 in")),
    Sketcher.Constraint("DistanceX", 0, 3, -1, 1, Q("53.497847 mm")),
    Sketcher.Constraint("DistanceY", 0, 3, -1, 1, Q("46.939284 mm")),
])
pad7 = body3.newObject("PartDesign::Pad", "Pad006")
pad7.Profile = sketch19
pad7.Length = Q("0.26 in")
pad7.Reversed = True

# Sketch on YZ plane
sketch20 = body3.newObject("Sketcher::SketchObject", "Sketch019")
sketch20.AttachmentSupport = (doc.getObject("YZ_Plane002"), [""])
sketch20.MapMode = "FlatFace"
sketch20.AttachmentOffset = App.Placement(V(0, 0, -0.26 * 25.4), App.Rotation())
sketch20.addGeometry(Part.Circle(V(-53.5, -46.9, 0), V(0, 0, 1), 2.4), False)
sketch20.addConstraint([
    Sketcher.Constraint("Diameter", 0, Q("0.1875 in")),
    Sketcher.Constraint("DistanceX", 0, 3, -1, 1, Q("53.497847 mm")),
    Sketcher.Constraint("DistanceY", 0, 3, -1, 1, Q("46.939284 mm")),
])
pocket13 = body3.newObject("PartDesign::Pocket", "Pocket012")
pocket13.Profile = sketch20
pocket13.Length = Q("1 in")
pocket13.Reversed = True
body4 = doc.addObject("PartDesign::Body", "Body003")

# Sketch on YZ plane
sketch21 = body4.newObject("Sketcher::SketchObject", "Sketch020")
sketch21.AttachmentSupport = (doc.getObject("YZ_Plane003"), [""])
sketch21.MapMode = "FlatFace"
sketch21.addGeometry(Part.Circle(V(-30, -46, 0), V(0, 0, 1), 6), False)
sketch21.addConstraint([
    Sketcher.Constraint("Diameter", 0, Q("0.5 in")),
    Sketcher.Constraint("DistanceY", 0, 3, -1, 1, Q("46.433281 mm")),
    Sketcher.Constraint("DistanceX", 0, 3, -1, 1, Q("30.494284 mm")),
])
pad8 = body4.newObject("PartDesign::Pad", "Pad007")
pad8.Profile = sketch21
pad8.Length = Q("0.062 in")
pad8.Reversed = True

# Sketch on YZ plane
sketch22 = body4.newObject("Sketcher::SketchObject", "Sketch021")
sketch22.AttachmentSupport = (doc.getObject("YZ_Plane003"), [""])
sketch22.MapMode = "FlatFace"
sketch22.addGeometry(Part.Circle(V(-30, -46, 0), V(0, 0, 1), 6), False)
sketch22.addConstraint([
    Sketcher.Constraint("Diameter", 0, Q("0.437 in")),
    Sketcher.Constraint("DistanceY", 0, 3, -1, 1, Q("46.433281 mm")),
    Sketcher.Constraint("DistanceX", 0, 3, -1, 1, Q("30.494284 mm")),
])
pad9 = body4.newObject("PartDesign::Pad", "Pad008")
pad9.Profile = sketch22
pad9.Length = Q("0.655 in")

# Sketch on YZ plane
sketch23 = body4.newObject("Sketcher::SketchObject", "Sketch022")
sketch23.AttachmentSupport = (doc.getObject("YZ_Plane003"), [""])
sketch23.MapMode = "FlatFace"
sketch23.AttachmentOffset = App.Placement(V(0, 0, 0.655 * 25.4), App.Rotation())
sketch23.addGeometry(Part.Circle(V(-30.5, -46.4, 0), V(0, 0, 1), 4), False)
sketch23.addConstraint([
    Sketcher.Constraint("Diameter", 0, Q("0.3125 in")),
    Sketcher.Constraint("DistanceY", 0, 3, -1, 1, Q("46.433281 mm")),
    Sketcher.Constraint("DistanceX", 0, 3, -1, 1, Q("30.494284 mm")),
])
pocket14 = body4.newObject("PartDesign::Pocket", "Pocket013")
pocket14.Profile = sketch23
pocket14.Length = Q("1 in")
body5 = doc.addObject("PartDesign::Body", "Body004")

# Sketch on YZ plane
sketch24 = body5.newObject("Sketcher::SketchObject", "Sketch023")
sketch24.AttachmentSupport = (doc.getObject("YZ_Plane004"), [""])
sketch24.MapMode = "FlatFace"
sketch24.addGeometry(Part.Circle(V(0, -47, 0), V(0, 0, 1), 5), False)
sketch24.addConstraint([
    Sketcher.Constraint("PointOnObject", 0, 3, -2),
    Sketcher.Constraint("Diameter", 0, Q("0.42 in")),
    Sketcher.Constraint("DistanceY", 0, 3, -1, 1, Q("46.626456 mm")),
])
pad10 = body5.newObject("PartDesign::Pad", "Pad009")
pad10.Profile = sketch24
pad10.Length = Q("0.25 in")

# Sketch on YZ plane
sketch25 = body5.newObject("Sketcher::SketchObject", "Sketch024")
sketch25.AttachmentSupport = (doc.getObject("YZ_Plane004"), [""])
sketch25.MapMode = "FlatFace"
sketch25.AttachmentOffset = App.Placement(V(0, 0, 0.25 * 25.4), App.Rotation())
sketch25.addGeometry(Part.Circle(V(0, -46.6, 0), V(0, 0, 1), 4), False)
sketch25.addConstraint([
    Sketcher.Constraint("PointOnObject", 0, 3, -2),
    Sketcher.Constraint("Diameter", 0, Q("0.312 in")),
    Sketcher.Constraint("DistanceY", 0, 3, -1, 1, Q("46.626456 mm")),
])
pad11 = body5.newObject("PartDesign::Pad", "Pad010")
pad11.Profile = sketch25
pad11.Length = Q("0.722 in")

# Sketch on YZ plane
sketch26 = body5.newObject("Sketcher::SketchObject", "Sketch025")
sketch26.AttachmentSupport = (doc.getObject("YZ_Plane004"), [""])
sketch26.MapMode = "FlatFace"
sketch26.AttachmentOffset = App.Placement(V(0, 0, 0.972 * 25.4), App.Rotation())
sketch26.addGeometry(Part.Circle(V(0, -46.6, 0), V(0, 0, 1), 2.4), False)
sketch26.addConstraint([
    Sketcher.Constraint("PointOnObject", 0, 3, -2),
    Sketcher.Constraint("Diameter", 0, Q("0.187 in")),
    Sketcher.Constraint("DistanceY", 0, 3, -1, 1, Q("46.626456 mm")),
])
pad12 = body5.newObject("PartDesign::Pad", "Pad011")
pad12.Profile = sketch26
pad12.Length = Q("0.593 in")

# Sketch on YZ plane
sketch27 = body5.newObject("Sketcher::SketchObject", "Sketch026")
sketch27.AttachmentSupport = (doc.getObject("YZ_Plane004"), [""])
sketch27.MapMode = "FlatFace"
sketch27.addGeometry(Part.Circle(V(0, -46.6, 0), V(0, 0, 1), 2.4), False)
sketch27.addConstraint([
    Sketcher.Constraint("PointOnObject", 0, 3, -2),
    Sketcher.Constraint("Diameter", 0, Q("0.1875 in")),
    Sketcher.Constraint("DistanceY", 0, 3, -1, 1, Q("46.626456 mm")),
])
pocket15 = body5.newObject("PartDesign::Pocket", "Pocket014")
pocket15.Profile = sketch27
pocket15.Length = Q("0.31 in")
pocket15.Reversed = True

# Sketch on XZ plane
sketch28 = body5.newObject("Sketcher::SketchObject", "Sketch027")
sketch28.AttachmentSupport = (doc.getObject("XZ_Plane004"), [""])
sketch28.MapMode = "FlatFace"
sketch28.AttachmentOffset = App.Placement(V(0, 0, 0.21 * 25.4), App.Rotation())
sketch28.addGeometry(Part.Circle(V(3, -46.7, 0), V(0, 0, 1), 1.4), False)
sketch28.addConstraint([
    Sketcher.Constraint("Diameter", 0, Q("0.112 in")),
    Sketcher.Constraint("DistanceX", -1, 1, 0, 3, Q("0.12 in")),
    Sketcher.Constraint("DistanceY", 0, 3, -1, 1, Q("46.657894 mm")),
])
pocket16 = body5.newObject("PartDesign::Pocket", "Pocket015")
pocket16.Profile = sketch28
pocket16.Length = Q("0.2 in")

# Sketch on XY plane
sketch29 = body5.newObject("Sketcher::SketchObject", "Sketch028")
sketch29.AttachmentSupport = (doc.getObject("XY_Plane004"), [""])
sketch29.MapMode = "FlatFace"
sketch29.AttachmentOffset = App.Placement(V(0, 0, -41.292456), App.Rotation())
sketch29.addGeometry(Part.Circle(V(3, 0, 0), V(0, 0, 1), 1.4), False)
sketch29.addConstraint([
    Sketcher.Constraint("PointOnObject", 0, 3, -1),
    Sketcher.Constraint("Diameter", 0, Q("0.112 in")),
    Sketcher.Constraint("DistanceX", -1, 1, 0, 3, Q("0.12 in")),
])
pocket17 = body5.newObject("PartDesign::Pocket", "Pocket016")
pocket17.Profile = sketch29
pocket17.Length = Q("0.2 in")

doc.recompute()
